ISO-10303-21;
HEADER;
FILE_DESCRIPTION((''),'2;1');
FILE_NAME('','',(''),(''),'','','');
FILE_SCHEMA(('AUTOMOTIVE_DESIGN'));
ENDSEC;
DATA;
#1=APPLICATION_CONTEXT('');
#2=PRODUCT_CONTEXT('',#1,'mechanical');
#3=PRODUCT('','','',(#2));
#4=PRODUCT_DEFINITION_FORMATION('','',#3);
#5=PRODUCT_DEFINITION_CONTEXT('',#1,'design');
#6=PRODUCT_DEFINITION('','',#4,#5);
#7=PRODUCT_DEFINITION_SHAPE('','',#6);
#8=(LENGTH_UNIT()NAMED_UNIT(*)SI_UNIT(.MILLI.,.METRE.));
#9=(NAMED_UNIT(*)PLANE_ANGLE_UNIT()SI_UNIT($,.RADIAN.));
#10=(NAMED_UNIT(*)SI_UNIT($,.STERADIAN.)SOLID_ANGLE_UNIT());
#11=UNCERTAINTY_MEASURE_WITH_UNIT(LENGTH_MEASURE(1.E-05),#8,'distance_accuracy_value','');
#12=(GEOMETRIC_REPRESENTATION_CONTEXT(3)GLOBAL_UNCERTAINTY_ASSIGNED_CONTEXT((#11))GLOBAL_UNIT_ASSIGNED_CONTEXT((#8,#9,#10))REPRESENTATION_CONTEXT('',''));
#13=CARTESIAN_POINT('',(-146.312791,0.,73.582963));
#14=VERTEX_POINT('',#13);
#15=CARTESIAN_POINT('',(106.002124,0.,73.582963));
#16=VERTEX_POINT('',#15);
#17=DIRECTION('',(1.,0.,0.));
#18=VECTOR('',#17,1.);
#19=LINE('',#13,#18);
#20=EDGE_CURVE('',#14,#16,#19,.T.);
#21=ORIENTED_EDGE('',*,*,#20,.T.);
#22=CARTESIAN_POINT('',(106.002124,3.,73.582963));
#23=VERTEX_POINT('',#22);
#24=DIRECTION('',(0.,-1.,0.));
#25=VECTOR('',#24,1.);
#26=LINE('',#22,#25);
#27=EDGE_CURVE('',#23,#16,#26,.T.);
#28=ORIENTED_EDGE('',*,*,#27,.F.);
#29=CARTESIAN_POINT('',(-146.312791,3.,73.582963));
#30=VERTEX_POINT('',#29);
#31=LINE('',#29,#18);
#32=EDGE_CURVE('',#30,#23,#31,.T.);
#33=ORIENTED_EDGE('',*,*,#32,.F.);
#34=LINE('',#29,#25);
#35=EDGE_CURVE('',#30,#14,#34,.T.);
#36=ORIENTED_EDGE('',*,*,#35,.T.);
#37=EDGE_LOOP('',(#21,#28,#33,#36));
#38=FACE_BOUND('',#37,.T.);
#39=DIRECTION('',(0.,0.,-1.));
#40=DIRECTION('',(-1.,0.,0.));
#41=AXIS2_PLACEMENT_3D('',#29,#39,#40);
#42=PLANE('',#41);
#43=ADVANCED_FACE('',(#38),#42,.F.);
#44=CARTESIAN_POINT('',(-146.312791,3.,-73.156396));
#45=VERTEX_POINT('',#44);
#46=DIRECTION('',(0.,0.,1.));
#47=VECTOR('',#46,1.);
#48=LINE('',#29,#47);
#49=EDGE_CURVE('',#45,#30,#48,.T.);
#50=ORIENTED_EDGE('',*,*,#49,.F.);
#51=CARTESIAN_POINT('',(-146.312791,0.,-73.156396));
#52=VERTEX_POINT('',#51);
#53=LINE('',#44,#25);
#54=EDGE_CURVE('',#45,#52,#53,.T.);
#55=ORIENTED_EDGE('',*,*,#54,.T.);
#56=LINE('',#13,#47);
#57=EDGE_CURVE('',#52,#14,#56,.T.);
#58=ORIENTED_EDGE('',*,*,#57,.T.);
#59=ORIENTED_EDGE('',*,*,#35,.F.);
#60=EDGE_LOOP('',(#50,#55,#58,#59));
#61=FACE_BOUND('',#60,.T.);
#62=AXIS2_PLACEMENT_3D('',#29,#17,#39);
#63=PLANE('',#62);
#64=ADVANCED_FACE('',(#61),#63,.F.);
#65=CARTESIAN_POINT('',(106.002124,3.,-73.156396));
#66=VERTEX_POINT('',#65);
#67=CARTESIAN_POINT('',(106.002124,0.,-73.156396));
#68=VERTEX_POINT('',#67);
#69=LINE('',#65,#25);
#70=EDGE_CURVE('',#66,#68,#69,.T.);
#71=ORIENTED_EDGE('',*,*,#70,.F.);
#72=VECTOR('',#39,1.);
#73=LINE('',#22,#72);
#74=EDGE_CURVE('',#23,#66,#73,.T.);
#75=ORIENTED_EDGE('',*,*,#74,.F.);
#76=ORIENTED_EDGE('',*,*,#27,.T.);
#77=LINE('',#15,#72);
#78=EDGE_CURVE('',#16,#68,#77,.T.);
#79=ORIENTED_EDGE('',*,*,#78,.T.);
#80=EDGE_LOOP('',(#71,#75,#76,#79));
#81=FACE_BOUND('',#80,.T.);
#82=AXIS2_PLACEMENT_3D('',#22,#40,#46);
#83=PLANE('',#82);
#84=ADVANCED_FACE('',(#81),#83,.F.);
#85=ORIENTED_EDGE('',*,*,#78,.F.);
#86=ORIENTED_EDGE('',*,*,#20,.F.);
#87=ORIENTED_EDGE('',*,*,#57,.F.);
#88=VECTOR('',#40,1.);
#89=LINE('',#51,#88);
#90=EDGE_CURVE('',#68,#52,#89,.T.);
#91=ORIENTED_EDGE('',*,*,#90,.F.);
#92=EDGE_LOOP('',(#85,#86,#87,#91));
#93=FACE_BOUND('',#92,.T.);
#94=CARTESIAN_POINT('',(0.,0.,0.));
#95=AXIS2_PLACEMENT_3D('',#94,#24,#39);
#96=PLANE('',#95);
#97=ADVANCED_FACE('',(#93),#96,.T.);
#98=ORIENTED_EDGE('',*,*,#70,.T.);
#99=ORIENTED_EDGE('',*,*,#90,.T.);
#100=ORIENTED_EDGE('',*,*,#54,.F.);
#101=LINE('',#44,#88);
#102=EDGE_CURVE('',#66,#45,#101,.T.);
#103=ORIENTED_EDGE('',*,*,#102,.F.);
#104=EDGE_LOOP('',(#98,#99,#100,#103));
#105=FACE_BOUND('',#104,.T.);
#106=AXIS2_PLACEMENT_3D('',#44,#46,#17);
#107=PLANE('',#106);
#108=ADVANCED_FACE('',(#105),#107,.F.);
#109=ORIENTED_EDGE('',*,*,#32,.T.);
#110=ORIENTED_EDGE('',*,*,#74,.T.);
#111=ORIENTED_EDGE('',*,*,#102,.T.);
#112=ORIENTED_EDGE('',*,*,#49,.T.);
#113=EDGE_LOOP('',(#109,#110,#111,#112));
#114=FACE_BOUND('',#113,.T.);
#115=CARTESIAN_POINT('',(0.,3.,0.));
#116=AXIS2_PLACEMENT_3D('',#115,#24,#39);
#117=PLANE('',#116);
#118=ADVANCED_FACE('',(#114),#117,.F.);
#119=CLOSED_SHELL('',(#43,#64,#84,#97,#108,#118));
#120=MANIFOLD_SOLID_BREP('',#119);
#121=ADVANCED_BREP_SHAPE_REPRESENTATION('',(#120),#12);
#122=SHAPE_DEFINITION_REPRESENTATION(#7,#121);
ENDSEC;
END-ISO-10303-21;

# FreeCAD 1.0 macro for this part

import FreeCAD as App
import Part
import Sketcher

V = App.Vector


def add_polygon(sketch, points):
    """Adds a closed chain of lines whose ends are joined by coincident constraints."""
    first, n = sketch.GeometryCount, len(points)
    for a, b in zip(points, points[1:] + points[:1]):
        sketch.addGeometry(Part.LineSegment(App.Vector(*a, 0), App.Vector(*b, 0)), False)
    for i in range(n):
        sketch.addConstraint(Sketcher.Constraint("Coincident", first + i, 2, first + (i + 1) % n, 1))

doc = App.newDocument("Part")
body = doc.addObject("PartDesign::Body", "Body")

# Sketch on XZ plane
sketch1 = body.newObject("Sketcher::SketchObject", "Sketch")
sketch1.AttachmentSupport = (doc.getObject("XZ_Plane"), [""])
sketch1.MapMode = "FlatFace"
add_polygon(sketch1, [(-146, -73), (-146, 74), (106, 74), (106, -73)])  # lines 0-3
sketch1.addConstraint([
    Sketcher.Constraint("Vertical", 0),
    Sketcher.Constraint("Horizontal", 1),
    Sketcher.Constraint("Vertical", 2),
    Sketcher.Constraint("Horizontal", 3),
    Sketcher.Constraint("DistanceY", 0, 1, 0, 2, 146.739359),
    Sketcher.Constraint("DistanceX", 1, 1, 1, 2, 252.314915),
    Sketcher.Constraint("DistanceX", 0, 2, -1, 1, 146.312791),
    Sketcher.Constraint("DistanceY", -1, 1, 0, 2, 73.582963),
])
pad1 = body.newObject("PartDesign::Pad", "Pad")
pad1.Profile = sketch1
pad1.Length = 3
pad1.Reversed = True

doc.recompute()
